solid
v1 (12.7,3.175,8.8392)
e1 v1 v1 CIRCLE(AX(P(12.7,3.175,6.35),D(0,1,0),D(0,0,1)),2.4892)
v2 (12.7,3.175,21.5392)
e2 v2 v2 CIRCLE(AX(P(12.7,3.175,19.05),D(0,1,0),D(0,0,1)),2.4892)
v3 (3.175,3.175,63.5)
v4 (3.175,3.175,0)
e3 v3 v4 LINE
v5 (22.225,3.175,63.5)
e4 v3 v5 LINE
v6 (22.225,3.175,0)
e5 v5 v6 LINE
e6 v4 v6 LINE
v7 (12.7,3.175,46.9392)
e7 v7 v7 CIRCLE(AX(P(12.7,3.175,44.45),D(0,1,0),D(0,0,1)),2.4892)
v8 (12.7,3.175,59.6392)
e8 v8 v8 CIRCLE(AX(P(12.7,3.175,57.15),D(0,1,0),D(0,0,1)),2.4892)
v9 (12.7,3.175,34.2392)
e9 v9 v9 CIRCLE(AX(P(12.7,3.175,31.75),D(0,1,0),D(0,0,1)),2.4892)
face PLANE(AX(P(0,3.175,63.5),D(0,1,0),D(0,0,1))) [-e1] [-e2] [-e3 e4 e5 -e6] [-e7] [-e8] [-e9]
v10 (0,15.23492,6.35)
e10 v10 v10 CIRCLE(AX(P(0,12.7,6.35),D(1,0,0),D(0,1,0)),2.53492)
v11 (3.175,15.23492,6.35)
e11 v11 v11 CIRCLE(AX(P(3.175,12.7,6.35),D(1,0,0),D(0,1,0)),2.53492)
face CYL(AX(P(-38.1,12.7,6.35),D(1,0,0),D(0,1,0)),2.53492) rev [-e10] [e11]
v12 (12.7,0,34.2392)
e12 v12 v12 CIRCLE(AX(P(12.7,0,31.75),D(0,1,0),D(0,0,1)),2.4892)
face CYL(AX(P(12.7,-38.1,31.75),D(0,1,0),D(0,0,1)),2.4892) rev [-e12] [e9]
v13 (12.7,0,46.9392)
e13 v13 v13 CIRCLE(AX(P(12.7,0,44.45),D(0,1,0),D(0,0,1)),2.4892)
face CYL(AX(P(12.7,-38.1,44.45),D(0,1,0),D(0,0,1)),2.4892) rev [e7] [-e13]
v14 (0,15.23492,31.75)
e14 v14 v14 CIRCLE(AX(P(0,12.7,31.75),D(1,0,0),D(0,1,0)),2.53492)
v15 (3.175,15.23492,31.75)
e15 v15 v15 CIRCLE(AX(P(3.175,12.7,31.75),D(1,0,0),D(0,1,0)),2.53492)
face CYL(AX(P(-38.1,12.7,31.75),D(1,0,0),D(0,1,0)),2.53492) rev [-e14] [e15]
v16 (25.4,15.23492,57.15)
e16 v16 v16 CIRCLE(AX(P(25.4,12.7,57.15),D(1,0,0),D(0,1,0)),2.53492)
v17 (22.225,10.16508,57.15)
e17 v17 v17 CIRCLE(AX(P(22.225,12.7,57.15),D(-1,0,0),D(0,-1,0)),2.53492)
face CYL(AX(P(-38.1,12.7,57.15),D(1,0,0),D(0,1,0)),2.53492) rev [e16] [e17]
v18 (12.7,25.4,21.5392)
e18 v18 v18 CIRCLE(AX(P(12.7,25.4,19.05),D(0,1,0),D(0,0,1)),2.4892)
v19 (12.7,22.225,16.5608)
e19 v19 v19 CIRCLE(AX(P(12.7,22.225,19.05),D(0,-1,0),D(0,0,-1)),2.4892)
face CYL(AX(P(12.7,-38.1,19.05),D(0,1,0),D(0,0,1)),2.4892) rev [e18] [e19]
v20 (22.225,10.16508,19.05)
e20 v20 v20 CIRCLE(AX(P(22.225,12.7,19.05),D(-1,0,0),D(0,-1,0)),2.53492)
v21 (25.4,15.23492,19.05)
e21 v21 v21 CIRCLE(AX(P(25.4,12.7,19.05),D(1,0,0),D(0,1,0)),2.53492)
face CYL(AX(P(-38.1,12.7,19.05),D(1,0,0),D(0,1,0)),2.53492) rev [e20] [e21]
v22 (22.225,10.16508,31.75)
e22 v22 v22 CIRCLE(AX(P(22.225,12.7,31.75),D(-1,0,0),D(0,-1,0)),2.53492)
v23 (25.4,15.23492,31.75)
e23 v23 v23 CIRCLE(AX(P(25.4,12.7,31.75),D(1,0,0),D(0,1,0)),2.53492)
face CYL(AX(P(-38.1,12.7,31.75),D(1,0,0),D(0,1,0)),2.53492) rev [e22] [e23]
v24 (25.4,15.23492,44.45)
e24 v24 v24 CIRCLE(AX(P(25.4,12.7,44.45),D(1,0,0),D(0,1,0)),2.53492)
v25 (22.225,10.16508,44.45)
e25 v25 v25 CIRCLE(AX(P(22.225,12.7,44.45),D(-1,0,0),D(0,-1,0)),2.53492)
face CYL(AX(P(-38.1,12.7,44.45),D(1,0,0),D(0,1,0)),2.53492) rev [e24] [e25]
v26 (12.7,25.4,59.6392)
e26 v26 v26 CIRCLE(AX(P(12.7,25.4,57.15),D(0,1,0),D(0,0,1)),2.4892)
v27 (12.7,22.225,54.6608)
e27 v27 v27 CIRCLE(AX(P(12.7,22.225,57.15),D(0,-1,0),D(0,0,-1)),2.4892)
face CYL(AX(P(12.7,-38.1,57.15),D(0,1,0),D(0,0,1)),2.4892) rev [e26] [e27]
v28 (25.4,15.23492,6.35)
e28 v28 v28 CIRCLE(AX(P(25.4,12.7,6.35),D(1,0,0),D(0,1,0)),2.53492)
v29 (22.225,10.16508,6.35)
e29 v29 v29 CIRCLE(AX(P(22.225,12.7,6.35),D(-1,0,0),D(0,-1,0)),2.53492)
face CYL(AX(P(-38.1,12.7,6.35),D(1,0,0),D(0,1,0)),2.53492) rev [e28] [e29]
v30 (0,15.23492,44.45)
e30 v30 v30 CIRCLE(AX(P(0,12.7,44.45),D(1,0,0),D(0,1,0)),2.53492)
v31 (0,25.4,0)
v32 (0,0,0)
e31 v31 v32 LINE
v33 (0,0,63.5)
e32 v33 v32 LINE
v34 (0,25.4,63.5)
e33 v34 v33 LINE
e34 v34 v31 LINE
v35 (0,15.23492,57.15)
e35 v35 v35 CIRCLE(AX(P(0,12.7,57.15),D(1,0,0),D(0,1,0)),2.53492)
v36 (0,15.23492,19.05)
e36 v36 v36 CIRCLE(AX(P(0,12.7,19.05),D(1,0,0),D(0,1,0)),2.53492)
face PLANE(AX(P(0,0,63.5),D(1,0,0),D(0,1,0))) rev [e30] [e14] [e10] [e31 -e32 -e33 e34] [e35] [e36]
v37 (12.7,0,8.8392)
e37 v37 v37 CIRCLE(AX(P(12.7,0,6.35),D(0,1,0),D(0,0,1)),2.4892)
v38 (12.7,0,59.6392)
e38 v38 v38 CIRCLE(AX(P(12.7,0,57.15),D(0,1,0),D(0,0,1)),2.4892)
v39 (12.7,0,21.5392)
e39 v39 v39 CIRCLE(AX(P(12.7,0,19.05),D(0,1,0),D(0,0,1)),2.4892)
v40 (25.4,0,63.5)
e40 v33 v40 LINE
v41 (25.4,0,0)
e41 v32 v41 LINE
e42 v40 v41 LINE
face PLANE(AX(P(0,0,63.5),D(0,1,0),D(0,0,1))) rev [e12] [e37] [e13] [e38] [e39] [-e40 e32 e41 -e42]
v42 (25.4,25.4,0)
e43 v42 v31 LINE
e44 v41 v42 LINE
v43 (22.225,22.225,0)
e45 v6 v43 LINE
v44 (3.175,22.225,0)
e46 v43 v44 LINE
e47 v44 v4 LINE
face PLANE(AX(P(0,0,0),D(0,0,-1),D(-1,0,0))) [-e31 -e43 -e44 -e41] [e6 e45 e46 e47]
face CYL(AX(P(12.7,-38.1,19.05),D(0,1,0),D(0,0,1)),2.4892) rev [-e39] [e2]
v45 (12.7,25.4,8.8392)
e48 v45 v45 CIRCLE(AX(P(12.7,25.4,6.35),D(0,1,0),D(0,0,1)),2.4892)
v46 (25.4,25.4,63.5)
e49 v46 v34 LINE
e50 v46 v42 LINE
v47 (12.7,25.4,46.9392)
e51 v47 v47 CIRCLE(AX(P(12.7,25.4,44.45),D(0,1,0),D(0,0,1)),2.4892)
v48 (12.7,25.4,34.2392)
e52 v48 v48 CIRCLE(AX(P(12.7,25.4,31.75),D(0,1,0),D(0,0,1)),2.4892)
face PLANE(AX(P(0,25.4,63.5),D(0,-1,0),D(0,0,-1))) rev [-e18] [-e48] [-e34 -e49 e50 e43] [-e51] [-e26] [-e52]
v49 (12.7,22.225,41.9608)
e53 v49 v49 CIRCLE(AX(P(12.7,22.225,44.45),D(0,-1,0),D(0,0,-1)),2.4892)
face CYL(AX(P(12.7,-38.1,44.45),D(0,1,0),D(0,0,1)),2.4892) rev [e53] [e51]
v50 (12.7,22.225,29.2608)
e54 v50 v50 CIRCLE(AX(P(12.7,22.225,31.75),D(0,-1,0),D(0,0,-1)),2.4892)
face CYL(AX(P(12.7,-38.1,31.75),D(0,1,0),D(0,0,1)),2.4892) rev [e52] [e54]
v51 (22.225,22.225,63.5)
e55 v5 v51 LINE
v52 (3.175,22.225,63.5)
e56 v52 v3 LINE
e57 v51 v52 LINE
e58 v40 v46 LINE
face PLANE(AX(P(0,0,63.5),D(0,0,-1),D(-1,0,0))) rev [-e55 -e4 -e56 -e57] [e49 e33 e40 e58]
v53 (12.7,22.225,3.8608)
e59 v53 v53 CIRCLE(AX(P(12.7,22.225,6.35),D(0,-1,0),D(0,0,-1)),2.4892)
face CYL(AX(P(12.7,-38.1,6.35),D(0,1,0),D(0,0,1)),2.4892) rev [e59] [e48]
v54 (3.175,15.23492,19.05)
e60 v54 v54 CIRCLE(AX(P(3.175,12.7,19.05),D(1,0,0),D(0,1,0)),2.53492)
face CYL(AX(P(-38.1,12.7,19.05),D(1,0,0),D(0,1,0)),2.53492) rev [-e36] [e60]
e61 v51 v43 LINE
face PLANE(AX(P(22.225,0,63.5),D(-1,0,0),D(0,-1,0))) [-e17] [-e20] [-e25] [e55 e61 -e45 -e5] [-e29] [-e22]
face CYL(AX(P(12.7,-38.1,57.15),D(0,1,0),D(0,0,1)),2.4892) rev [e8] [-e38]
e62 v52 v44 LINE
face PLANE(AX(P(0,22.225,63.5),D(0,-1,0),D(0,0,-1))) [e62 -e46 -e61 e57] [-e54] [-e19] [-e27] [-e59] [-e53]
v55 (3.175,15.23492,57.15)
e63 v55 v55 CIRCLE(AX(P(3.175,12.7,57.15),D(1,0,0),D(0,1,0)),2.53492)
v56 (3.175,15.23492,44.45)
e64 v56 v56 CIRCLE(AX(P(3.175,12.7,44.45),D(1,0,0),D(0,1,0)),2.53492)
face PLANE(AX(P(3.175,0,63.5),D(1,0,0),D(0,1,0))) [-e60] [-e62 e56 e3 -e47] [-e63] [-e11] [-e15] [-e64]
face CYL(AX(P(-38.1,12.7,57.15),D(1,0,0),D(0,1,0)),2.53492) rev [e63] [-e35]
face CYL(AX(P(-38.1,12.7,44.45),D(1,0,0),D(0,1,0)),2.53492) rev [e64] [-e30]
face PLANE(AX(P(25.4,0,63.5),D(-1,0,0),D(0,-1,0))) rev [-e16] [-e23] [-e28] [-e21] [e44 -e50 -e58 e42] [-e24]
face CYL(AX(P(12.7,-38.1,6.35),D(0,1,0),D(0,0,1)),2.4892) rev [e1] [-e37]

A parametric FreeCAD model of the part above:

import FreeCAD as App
import Part
import Sketcher
Q = App.Units.Quantity


def faces_at(feature, points):
    """Names of the faces that lie closest to the given points."""
    faces = feature.Shape.Faces
    near = lambda p: min(range(len(faces)), key=lambda i: faces[i].distToShape(Part.Vertex(*p))[0])
    return sorted({f"Face{near(p) + 1}" for p in points})

doc = App.newDocument("Part")
params = doc.addObject("Spreadsheet::Sheet", "Params")
for row, (alias, value) in enumerate([
    ("sketch1_width", "1 in"),
    ("pad1_length", "2.5 in"),
    ("thickness_wall", "0.125 in"),
    ("sketch2_diameter", "0.196 in"),
    ("pocket1_length", "2.5 in"),
    ("pocket2_length", "2.5 in"),
], start=1):
    params.set(f"A{row}", alias)
    params.set(f"B{row}", "=" + value)
    params.setAlias(f"B{row}", alias)

body = doc.addObject("PartDesign::Body", "Body")

sketch1 = body.newObject("Sketcher::SketchObject", "Sketch")
sketch1.AttachmentSupport = (doc.getObject("XY_Plane"), [""])
sketch1.MapMode = "FlatFace"
sketch1.addGeometry(Part.LineSegment(App.Vector(0, 25, 0), App.Vector(0, 0, 0)), False)
sketch1.addGeometry(Part.LineSegment(App.Vector(0, 0, 0), App.Vector(25, 0, 0)), False)
sketch1.addGeometry(Part.LineSegment(App.Vector(25, 0, 0), App.Vector(25, 25, 0)), False)
sketch1.addGeometry(Part.LineSegment(App.Vector(25, 25, 0), App.Vector(0, 25, 0)), False)
sketch1.addConstraint(Sketcher.Constraint("Coincident", 0, 2, 1, 1))
sketch1.addConstraint(Sketcher.Constraint("Coincident", 1, 2, 2, 1))
sketch1.addConstraint(Sketcher.Constraint("Coincident", 2, 2, 3, 1))
sketch1.addConstraint(Sketcher.Constraint("Coincident", 3, 2, 0, 1))
sketch1.addConstraint(Sketcher.Constraint("Vertical", 0))
sketch1.addConstraint(Sketcher.Constraint("Horizontal", 1))
sketch1.addConstraint(Sketcher.Constraint("Vertical", 2))
sketch1.addConstraint(Sketcher.Constraint("Horizontal", 3))
sketch1.addConstraint(Sketcher.Constraint("Coincident", 0, 2, -1, 1))
sketch1.addConstraint(Sketcher.Constraint("Equal", 3, 0))
sketch1.addConstraint(Sketcher.Constraint("DistanceX", 1, 1, 1, 2, Q("1 in")))
sketch1.setExpression("Constraints[10]", "Params.sketch1_width")
pad1 = body.newObject("PartDesign::Pad", "Pad")
pad1.Profile = sketch1
pad1.setExpression("Length", "Params.pad1_length")
doc.recompute()

thickness = body.newObject("PartDesign::Thickness", "Thickness")
thickness.Base = (pad1, faces_at(pad1, [(12.7, 12.7, 63.5), (12.7, 12.7, 0)]))
thickness.setExpression("Value", "Params.thickness_wall")
thickness.Reversed = True
thickness.Join = "Intersection"

sketch2 = body.newObject("Sketcher::SketchObject", "Sketch001")
sketch2.AttachmentSupport = (doc.getObject("XZ_Plane"), [""])
sketch2.MapMode = "FlatFace"
sketch2.AttachmentOffset = App.Placement(App.Vector(0, 0, -1 * 25.4), App.Rotation())
sketch2.addGeometry(Part.Circle(App.Vector(12.7, 6.3, 0), App.Vector(0, 0, 1), 2.5), False)
sketch2.addGeometry(Part.Circle(App.Vector(12.7, 19.1, 0), App.Vector(0, 0, 1), 2.5), False)
sketch2.addGeometry(Part.Circle(App.Vector(12.7, 31.8, 0), App.Vector(0, 0, 1), 2.5), False)
sketch2.addGeometry(Part.Circle(App.Vector(12.7, 44.5, 0), App.Vector(0, 0, 1), 2.5), False)
sketch2.addGeometry(Part.Circle(App.Vector(12.7, 57.1, 0), App.Vector(0, 0, 1), 2.5), False)
sketch2.addConstraint(Sketcher.Constraint("Equal", 0, 1))
sketch2.addConstraint(Sketcher.Constraint("Equal", 1, 2))
sketch2.addConstraint(Sketcher.Constraint("Equal", 2, 3))
sketch2.addConstraint(Sketcher.Constraint("Equal", 3, 4))
sketch2.addConstraint(Sketcher.Constraint("Vertical", 0, 3, 1, 3))
sketch2.addConstraint(Sketcher.Constraint("Vertical", 1, 3, 2, 3))
sketch2.addConstraint(Sketcher.Constraint("Vertical", 2, 3, 3, 3))
sketch2.addConstraint(Sketcher.Constraint("Vertical", 3, 3, 4, 3))
sketch2.addConstraint(Sketcher.Constraint("Diameter", 0, Q("0.196 in")))
sketch2.addConstraint(Sketcher.Constraint("DistanceY", 0, 3, 2, 3, Q("1 in")))
sketch2.addConstraint(Sketcher.Constraint("DistanceY", 1, 3, 3, 3, Q("1 in")))
sketch2.addConstraint(Sketcher.Constraint("DistanceY", 2, 3, 4, 3, Q("1 in")))
sketch2.addConstraint(Sketcher.Constraint("DistanceX", -1, 1, 0, 3, Q("0.5 in")))
sketch2.addConstraint(Sketcher.Constraint("DistanceY", 0, 3, 1, 3, Q("0.5 in")))
sketch2.addConstraint(Sketcher.Constraint("DistanceY", -1, 1, 0, 3, Q("0.25 in")))
sketch2.setExpression("Constraints[8]", "Params.sketch2_diameter")
pocket1 = body.newObject("PartDesign::Pocket", "Pocket")
pocket1.Profile = sketch2
pocket1.setExpression("Length", "Params.pocket1_length")
pocket1.Reversed = True

sketch3 = body.newObject("Sketcher::SketchObject", "Sketch002")
sketch3.AttachmentSupport = (doc.getObject("YZ_Plane"), [""])
sketch3.MapMode = "FlatFace"
sketch3.AttachmentOffset = App.Placement(App.Vector(0, 0, 1 * 25.4), App.Rotation())
sketch3.addGeometry(Part.Circle(App.Vector(12.7, 57.1, 0), App.Vector(0, 0, 1), 2.5), False)
sketch3.addGeometry(Part.Circle(App.Vector(12.7, 44.5, 0), App.Vector(0, 0, 1), 2.5), False)
sketch3.addGeometry(Part.Circle(App.Vector(12.7, 31.8, 0), App.Vector(0, 0, 1), 2.5), False)
sketch3.addGeometry(Part.Circle(App.Vector(12.7, 19.1, 0), App.Vector(0, 0, 1), 2.5), False)
sketch3.addGeometry(Part.Circle(App.Vector(12.7, 6.3, 0), App.Vector(0, 0, 1), 2.5), False)
sketch3.addConstraint(Sketcher.Constraint("Equal", 0, 1))
sketch3.addConstraint(Sketcher.Constraint("Equal", 1, 2))
sketch3.addConstraint(Sketcher.Constraint("Equal", 2, 3))
sketch3.addConstraint(Sketcher.Constraint("Equal", 3, 4))
sketch3.addConstraint(Sketcher.Constraint("Vertical", 0, 3, 1, 3))
sketch3.addConstraint(Sketcher.Constraint("Vertical", 1, 3, 2, 3))
sketch3.addConstraint(Sketcher.Constraint("Vertical", 2, 3, 3, 3))
sketch3.addConstraint(Sketcher.Constraint("Vertical", 3, 3, 4, 3))
sketch3.addConstraint(Sketcher.Constraint("DistanceY", 2, 3, 0, 3, Q("1 in")))
sketch3.addConstraint(Sketcher.Constraint("DistanceY", 3, 3, 1, 3, Q("1 in")))
sketch3.addConstraint(Sketcher.Constraint("DistanceY", 4, 3, 2, 3, Q("1 in")))
sketch3.addConstraint(Sketcher.Constraint("Diameter", 0, Q("0.1996 in")))
sketch3.addConstraint(Sketcher.Constraint("DistanceX", -1, 1, 0, 3, Q("0.5 in")))
sketch3.addConstraint(Sketcher.Constraint("DistanceY", 1, 3, 0, 3, Q("0.5 in")))
sketch3.addConstraint(Sketcher.Constraint("DistanceY", -1, 1, 0, 3, Q("2.25 in")))
pocket2 = body.newObject("PartDesign::Pocket", "Pocket001")
pocket2.Profile = sketch3
pocket2.setExpression("Length", "Params.pocket2_length")

doc.recompute()
